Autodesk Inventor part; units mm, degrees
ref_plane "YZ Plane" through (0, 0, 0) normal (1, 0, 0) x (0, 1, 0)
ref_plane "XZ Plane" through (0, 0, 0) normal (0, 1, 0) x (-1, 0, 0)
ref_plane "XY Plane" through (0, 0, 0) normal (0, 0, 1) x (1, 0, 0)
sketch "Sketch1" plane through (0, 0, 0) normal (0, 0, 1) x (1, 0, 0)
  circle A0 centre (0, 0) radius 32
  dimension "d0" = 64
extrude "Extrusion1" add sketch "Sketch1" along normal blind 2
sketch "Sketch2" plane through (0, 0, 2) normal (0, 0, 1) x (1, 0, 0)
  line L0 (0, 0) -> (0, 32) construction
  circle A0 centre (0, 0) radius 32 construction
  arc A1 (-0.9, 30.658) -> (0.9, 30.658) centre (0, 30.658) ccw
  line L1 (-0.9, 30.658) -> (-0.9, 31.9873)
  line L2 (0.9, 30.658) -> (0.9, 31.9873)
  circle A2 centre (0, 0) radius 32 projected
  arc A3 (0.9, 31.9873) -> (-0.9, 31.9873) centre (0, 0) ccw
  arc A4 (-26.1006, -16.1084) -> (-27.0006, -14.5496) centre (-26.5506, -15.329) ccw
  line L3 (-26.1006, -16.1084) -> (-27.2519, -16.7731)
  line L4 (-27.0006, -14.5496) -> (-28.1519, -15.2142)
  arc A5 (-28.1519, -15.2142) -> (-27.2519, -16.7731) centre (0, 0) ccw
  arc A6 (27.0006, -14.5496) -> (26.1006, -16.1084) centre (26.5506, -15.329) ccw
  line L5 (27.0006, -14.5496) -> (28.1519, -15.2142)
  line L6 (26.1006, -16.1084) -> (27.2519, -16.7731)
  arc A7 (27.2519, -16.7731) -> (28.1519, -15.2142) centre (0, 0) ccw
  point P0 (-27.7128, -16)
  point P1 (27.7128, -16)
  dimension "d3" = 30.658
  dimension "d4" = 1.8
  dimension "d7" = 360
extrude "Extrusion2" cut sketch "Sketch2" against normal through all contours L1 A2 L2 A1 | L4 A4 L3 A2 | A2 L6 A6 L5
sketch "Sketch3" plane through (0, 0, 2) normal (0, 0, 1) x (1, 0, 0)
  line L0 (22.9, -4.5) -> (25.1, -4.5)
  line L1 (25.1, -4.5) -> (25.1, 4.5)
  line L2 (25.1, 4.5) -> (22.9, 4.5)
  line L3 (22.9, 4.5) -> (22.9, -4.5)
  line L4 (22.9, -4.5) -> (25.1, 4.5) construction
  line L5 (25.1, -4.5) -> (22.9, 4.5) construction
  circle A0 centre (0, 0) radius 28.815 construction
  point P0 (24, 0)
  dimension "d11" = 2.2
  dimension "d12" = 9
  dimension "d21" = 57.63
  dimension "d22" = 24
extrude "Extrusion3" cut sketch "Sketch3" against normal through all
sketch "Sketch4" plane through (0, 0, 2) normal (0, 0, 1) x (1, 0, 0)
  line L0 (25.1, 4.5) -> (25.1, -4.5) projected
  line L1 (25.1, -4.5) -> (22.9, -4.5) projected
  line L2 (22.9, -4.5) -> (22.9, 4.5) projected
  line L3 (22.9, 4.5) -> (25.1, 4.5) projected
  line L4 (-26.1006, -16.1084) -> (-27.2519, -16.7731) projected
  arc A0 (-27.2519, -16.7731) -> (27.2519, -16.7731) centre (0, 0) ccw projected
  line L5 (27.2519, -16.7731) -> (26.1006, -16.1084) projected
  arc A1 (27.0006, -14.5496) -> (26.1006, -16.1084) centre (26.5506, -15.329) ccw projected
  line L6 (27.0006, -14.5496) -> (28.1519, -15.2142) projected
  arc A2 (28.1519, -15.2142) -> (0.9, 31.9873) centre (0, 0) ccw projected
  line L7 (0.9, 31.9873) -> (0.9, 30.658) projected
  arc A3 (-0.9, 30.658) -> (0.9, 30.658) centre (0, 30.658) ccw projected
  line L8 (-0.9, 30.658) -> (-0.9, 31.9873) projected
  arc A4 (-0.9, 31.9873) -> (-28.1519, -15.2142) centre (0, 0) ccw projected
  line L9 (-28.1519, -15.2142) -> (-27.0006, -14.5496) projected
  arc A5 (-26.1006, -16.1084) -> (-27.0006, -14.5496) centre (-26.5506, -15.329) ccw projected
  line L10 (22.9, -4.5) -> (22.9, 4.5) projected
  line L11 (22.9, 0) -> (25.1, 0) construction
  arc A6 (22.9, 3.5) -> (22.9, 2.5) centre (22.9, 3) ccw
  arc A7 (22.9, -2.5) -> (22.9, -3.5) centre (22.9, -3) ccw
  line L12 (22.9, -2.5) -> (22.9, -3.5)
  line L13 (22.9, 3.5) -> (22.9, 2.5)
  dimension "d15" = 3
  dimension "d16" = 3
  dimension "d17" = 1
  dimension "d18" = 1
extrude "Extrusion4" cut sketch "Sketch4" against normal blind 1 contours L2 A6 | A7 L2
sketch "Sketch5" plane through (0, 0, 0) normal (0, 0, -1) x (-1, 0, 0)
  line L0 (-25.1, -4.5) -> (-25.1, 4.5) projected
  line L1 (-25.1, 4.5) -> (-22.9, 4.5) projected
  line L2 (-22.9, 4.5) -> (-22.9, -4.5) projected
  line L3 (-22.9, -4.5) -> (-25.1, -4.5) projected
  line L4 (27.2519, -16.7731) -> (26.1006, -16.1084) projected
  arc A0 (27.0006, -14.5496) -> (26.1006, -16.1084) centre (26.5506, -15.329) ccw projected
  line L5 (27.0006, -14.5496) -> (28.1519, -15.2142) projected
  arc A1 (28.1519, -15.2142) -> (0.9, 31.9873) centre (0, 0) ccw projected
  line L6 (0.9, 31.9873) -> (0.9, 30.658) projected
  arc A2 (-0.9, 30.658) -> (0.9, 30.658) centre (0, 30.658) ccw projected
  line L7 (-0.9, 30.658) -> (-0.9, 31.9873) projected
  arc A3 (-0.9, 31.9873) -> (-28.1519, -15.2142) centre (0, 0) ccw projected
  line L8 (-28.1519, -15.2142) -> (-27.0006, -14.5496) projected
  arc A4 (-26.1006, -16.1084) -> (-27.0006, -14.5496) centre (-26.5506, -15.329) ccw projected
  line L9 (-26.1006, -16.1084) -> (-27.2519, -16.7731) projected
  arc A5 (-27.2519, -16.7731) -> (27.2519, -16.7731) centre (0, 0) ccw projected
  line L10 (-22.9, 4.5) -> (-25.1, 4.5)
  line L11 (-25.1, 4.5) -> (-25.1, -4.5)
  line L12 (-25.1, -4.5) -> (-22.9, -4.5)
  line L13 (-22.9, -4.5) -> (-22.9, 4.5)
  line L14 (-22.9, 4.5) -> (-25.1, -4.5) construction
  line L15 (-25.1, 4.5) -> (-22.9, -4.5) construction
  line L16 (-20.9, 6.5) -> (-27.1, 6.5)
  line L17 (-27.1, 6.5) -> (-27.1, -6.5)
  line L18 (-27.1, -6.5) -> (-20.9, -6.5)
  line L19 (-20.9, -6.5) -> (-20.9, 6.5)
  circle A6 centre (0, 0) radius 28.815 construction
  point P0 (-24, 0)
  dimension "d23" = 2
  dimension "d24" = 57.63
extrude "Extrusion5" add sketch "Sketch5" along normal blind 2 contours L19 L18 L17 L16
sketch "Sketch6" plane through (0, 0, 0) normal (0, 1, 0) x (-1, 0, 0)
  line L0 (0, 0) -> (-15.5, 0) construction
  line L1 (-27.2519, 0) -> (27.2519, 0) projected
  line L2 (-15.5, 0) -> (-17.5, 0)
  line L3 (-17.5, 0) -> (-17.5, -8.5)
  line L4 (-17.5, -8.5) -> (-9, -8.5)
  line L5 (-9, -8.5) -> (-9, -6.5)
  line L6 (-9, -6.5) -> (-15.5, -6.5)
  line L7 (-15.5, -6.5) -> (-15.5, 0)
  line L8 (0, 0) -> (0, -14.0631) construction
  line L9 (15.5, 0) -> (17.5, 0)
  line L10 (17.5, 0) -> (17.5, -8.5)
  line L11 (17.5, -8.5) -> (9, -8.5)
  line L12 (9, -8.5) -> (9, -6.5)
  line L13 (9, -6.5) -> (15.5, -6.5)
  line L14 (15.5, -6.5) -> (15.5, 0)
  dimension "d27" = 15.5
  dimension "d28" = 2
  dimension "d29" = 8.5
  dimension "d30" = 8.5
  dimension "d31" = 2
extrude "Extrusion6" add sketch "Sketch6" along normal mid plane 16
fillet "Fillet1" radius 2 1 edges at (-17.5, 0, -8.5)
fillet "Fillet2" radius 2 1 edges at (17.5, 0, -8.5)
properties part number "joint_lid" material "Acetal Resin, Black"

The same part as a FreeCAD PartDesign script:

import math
import FreeCAD as App
import Part
import Sketcher
Q = App.Units.Quantity


def edges_at(feature, points):
    """Names of the edges that pass closest to the given points."""
    edges = feature.Shape.Edges
    near = lambda p: min(range(len(edges)), key=lambda i: edges[i].distToShape(Part.Vertex(*p))[0])
    return sorted({f"Edge{near(p) + 1}" for p in points})

doc = App.newDocument("Part")
body = doc.addObject("PartDesign::Body", "Body")

# Sketch on XY plane
sketch1 = body.newObject("Sketcher::SketchObject", "Sketch")
sketch1.AttachmentSupport = (doc.getObject("XY_Plane"), [""])
sketch1.MapMode = "FlatFace"
sketch1.addGeometry(Part.Circle(App.Vector(0, 0, 0), App.Vector(0, 0, 1), 32), False)
sketch1.addConstraint([
    Sketcher.Constraint("Coincident", 0, 3, -1, 1),
    Sketcher.Constraint("Diameter", 0, Q("64 mm")),
])
pad1 = body.newObject("PartDesign::Pad", "Pad")
pad1.Profile = sketch1
pad1.Length = 2

# Sketch on XY plane
sketch2 = body.newObject("Sketcher::SketchObject", "Sketch001")
sketch2.AttachmentSupport = (doc.getObject("XY_Plane"), [""])
sketch2.MapMode = "FlatFace"
sketch2.AttachmentOffset = App.Placement(App.Vector(0, 0, 2), App.Rotation())
sketch2.addGeometry([
    Part.LineSegment(App.Vector(-0.9, 32, 0), App.Vector(-0.9, 30.7, 0)),  # 0
    Part.ArcOfCircle(Part.Circle(App.Vector(0, 30.7, 0), App.Vector(0, 0, 1), 0.9), math.radians(180), math.radians(360)),  # 1
    Part.LineSegment(App.Vector(0.9, 30.7, 0), App.Vector(0.9, 32, 0)),  # 2
    Part.ArcOfCircle(Part.Circle(App.Vector(0, 0, 0), App.Vector(0, 0, 1), 32), math.radians(88.39), math.radians(91.61)),  # 3
    Part.LineSegment(App.Vector(-27, -14.5, 0), App.Vector(-28.2, -15.2, 0)),  # 4
    Part.ArcOfCircle(Part.Circle(App.Vector(0, 0, 0), App.Vector(0, 0, 1), 32), math.radians(-151.61), math.radians(-148.39)),  # 5
    Part.LineSegment(App.Vector(-27.3, -16.8, 0), App.Vector(-26.1, -16.1, 0)),  # 6
    Part.ArcOfCircle(Part.Circle(App.Vector(-26.6, -15.3, 0), App.Vector(0, 0, 1), 0.9), math.radians(-60), math.radians(120)),  # 7
    Part.ArcOfCircle(Part.Circle(App.Vector(0, 0, 0), App.Vector(0, 0, 1), 32), math.radians(-31.61), math.radians(-28.39)),  # 8
    Part.LineSegment(App.Vector(28.2, -15.2, 0), App.Vector(27, -14.5, 0)),  # 9
    Part.ArcOfCircle(Part.Circle(App.Vector(26.6, -15.3, 0), App.Vector(0, 0, 1), 0.9), math.radians(60), math.radians(240)),  # 10
    Part.LineSegment(App.Vector(26.1, -16.1, 0), App.Vector(27.3, -16.8, 0)),  # 11
], False)
sketch2.addConstraint([
    Sketcher.Constraint("Tangent", 0, 2, 1, 1),
    Sketcher.Constraint("Tangent", 1, 2, 2, 1),
    Sketcher.Constraint("Coincident", 2, 2, 3, 1),
    Sketcher.Constraint("Coincident", 3, 2, 0, 1),
    Sketcher.Constraint("Coincident", 4, 2, 5, 1),
    Sketcher.Constraint("Coincident", 5, 2, 6, 1),
    Sketcher.Constraint("Tangent", 6, 2, 7, 1),
    Sketcher.Constraint("Tangent", 7, 2, 4, 1),
    Sketcher.Constraint("Coincident", 8, 2, 9, 1),
    Sketcher.Constraint("Tangent", 9, 2, 10, 1),
    Sketcher.Constraint("Tangent", 10, 2, 11, 1),
    Sketcher.Constraint("Coincident", 11, 2, 8, 1),
    Sketcher.Constraint("Vertical", 0),
    Sketcher.Constraint("Vertical", 2),
    Sketcher.Constraint("Coincident", 3, 3, -1, 1),
    Sketcher.Constraint("Coincident", 5, 3, -1, 1),
    Sketcher.Constraint("Coincident", 8, 3, -1, 1),
    Sketcher.Constraint("Equal", 3, 5),
    Sketcher.Constraint("Equal", 1, 7),
    Sketcher.Constraint("Equal", 5, 8),
    Sketcher.Constraint("Equal", 7, 10),
    Sketcher.Constraint("Symmetric", 7, 3, 10, 3, -2),
    Sketcher.Constraint("PointOnObject", 1, 3, -2),
    Sketcher.Constraint("Parallel", 4, 6),
    Sketcher.Constraint("Parallel", 9, 11),
    Sketcher.Constraint("Horizontal", 4, 2, 8, 2),
    Sketcher.Constraint("Equal", 4, 6),
    Sketcher.Constraint("Radius", 1, Q("0.9 mm")),
    Sketcher.Constraint("Radius", 3, Q("32 mm")),
    Sketcher.Constraint("Angle", 6, Q("29.9999 deg")),
    Sketcher.Constraint("DistanceY", -1, 1, 1, 3, Q("30.658 mm")),
    Sketcher.Constraint("DistanceY", 7, 3, -1, 1, Q("15.329 mm")),
])
pocket1 = body.newObject("PartDesign::Pocket", "Pocket")
pocket1.Profile = sketch2
pocket1.Type = "ThroughAll"

# Sketch on XY plane
sketch3 = body.newObject("Sketcher::SketchObject", "Sketch002")
sketch3.AttachmentSupport = (doc.getObject("XY_Plane"), [""])
sketch3.MapMode = "FlatFace"
sketch3.AttachmentOffset = App.Placement(App.Vector(0, 0, 2), App.Rotation())
sketch3.addGeometry([
    Part.LineSegment(App.Vector(22.9, 4.5, 0), App.Vector(22.9, -4.5, 0)),
    Part.LineSegment(App.Vector(22.9, -4.5, 0), App.Vector(25.1, -4.5, 0)),
    Part.LineSegment(App.Vector(25.1, -4.5, 0), App.Vector(25.1, 4.5, 0)),
    Part.LineSegment(App.Vector(25.1, 4.5, 0), App.Vector(22.9, 4.5, 0)),
], False)
sketch3.addConstraint([
    Sketcher.Constraint("Coincident", 0, 2, 1, 1),
    Sketcher.Constraint("Coincident", 1, 2, 2, 1),
    Sketcher.Constraint("Coincident", 2, 2, 3, 1),
    Sketcher.Constraint("Coincident", 3, 2, 0, 1),
    Sketcher.Constraint("Vertical", 0),
    Sketcher.Constraint("Horizontal", 1),
    Sketcher.Constraint("Vertical", 2),
    Sketcher.Constraint("Horizontal", 3),
    Sketcher.Constraint("DistanceY", 0, 2, 0, 1, Q("9 mm")),
    Sketcher.Constraint("DistanceX", 1, 1, 1, 2, Q("2.2 mm")),
    Sketcher.Constraint("DistanceX", -1, 1, 0, 2, Q("22.9 mm")),
    Sketcher.Constraint("DistanceY", 0, 2, -1, 1, Q("4.5 mm")),
])
pocket2 = body.newObject("PartDesign::Pocket", "Pocket001")
pocket2.Profile = sketch3
pocket2.Type = "ThroughAll"

# Sketch on XY plane
sketch4 = body.newObject("Sketcher::SketchObject", "Sketch003")
sketch4.AttachmentSupport = (doc.getObject("XY_Plane"), [""])
sketch4.MapMode = "FlatFace"
sketch4.AttachmentOffset = App.Placement(App.Vector(0, 0, 2), App.Rotation())
sketch4.addGeometry([
    Part.LineSegment(App.Vector(22.9, 2.5, 0), App.Vector(22.9, 3.5, 0)),
    Part.ArcOfCircle(Part.Circle(App.Vector(22.9, 3, 0), App.Vector(0, 0, 1), 0.5), math.radians(90), math.radians(270)),
    Part.ArcOfCircle(Part.Circle(App.Vector(22.9, -3, 0), App.Vector(0, 0, 1), 0.5), math.radians(90), math.radians(270)),
    Part.LineSegment(App.Vector(22.9, -3.5, 0), App.Vector(22.9, -2.5, 0)),
], False)
sketch4.addConstraint([
    Sketcher.Constraint("Coincident", 0, 1, 1, 2),
    Sketcher.Constraint("Coincident", 1, 1, 0, 2),
    Sketcher.Constraint("Coincident", 2, 1, 3, 2),
    Sketcher.Constraint("Coincident", 3, 1, 2, 2),
    Sketcher.Constraint("Vertical", 0),
    Sketcher.Constraint("Vertical", 3),
    Sketcher.Constraint("Equal", 1, 2),
    Sketcher.Constraint("Symmetric", 1, 3, 2, 3, -1),
    Sketcher.Constraint("Vertical", 2, 3, 0, 1),
    Sketcher.Constraint("Vertical", 1, 1, 2, 1),
    Sketcher.Constraint("Radius", 1, Q("0.5 mm")),
    Sketcher.Constraint("DistanceY", -1, 1, 1, 3, Q("3 mm")),
    Sketcher.Constraint("DistanceX", -1, 1, 1, 3, Q("22.9 mm")),
])
pocket3 = body.newObject("PartDesign::Pocket", "Pocket002")
pocket3.Profile = sketch4
pocket3.Length = 1

# Sketch on XY plane
sketch5 = body.newObject("Sketcher::SketchObject", "Sketch004")
sketch5.AttachmentSupport = (doc.getObject("XY_Plane"), [""])
sketch5.MapMode = "FlatFace"
sketch5.addGeometry([
    Part.LineSegment(App.Vector(20.9, -6.5, 0), App.Vector(20.9, 6.5, 0)),  # 0
    Part.LineSegment(App.Vector(20.9, 6.5, 0), App.Vector(27.1, 6.5, 0)),  # 1
    Part.LineSegment(App.Vector(27.1, 6.5, 0), App.Vector(27.1, -6.5, 0)),  # 2
    Part.LineSegment(App.Vector(27.1, -6.5, 0), App.Vector(20.9, -6.5, 0)),  # 3
    Part.LineSegment(App.Vector(22.9, -4.5, 0), App.Vector(25.1, -4.5, 0)),  # 4
    Part.LineSegment(App.Vector(25.1, -4.5, 0), App.Vector(25.1, 4.5, 0)),  # 5
    Part.LineSegment(App.Vector(25.1, 4.5, 0), App.Vector(22.9, 4.5, 0)),  # 6
    Part.LineSegment(App.Vector(22.9, 4.5, 0), App.Vector(22.9, -4.5, 0)),  # 7
], False)
sketch5.addConstraint([
    Sketcher.Constraint("Coincident", 0, 2, 1, 1),
    Sketcher.Constraint("Coincident", 1, 2, 2, 1),
    Sketcher.Constraint("Coincident", 2, 2, 3, 1),
    Sketcher.Constraint("Coincident", 3, 2, 0, 1),
    Sketcher.Constraint("Coincident", 4, 2, 5, 1),
    Sketcher.Constraint("Coincident", 5, 2, 6, 1),
    Sketcher.Constraint("Coincident", 6, 2, 7, 1),
    Sketcher.Constraint("Coincident", 7, 2, 4, 1),
    Sketcher.Constraint("Vertical", 0),
    Sketcher.Constraint("Horizontal", 1),
    Sketcher.Constraint("Vertical", 2),
    Sketcher.Constraint("Horizontal", 3),
    Sketcher.Constraint("Horizontal", 4),
    Sketcher.Constraint("Vertical", 5),
    Sketcher.Constraint("Horizontal", 6),
    Sketcher.Constraint("Vertical", 7),
    Sketcher.Constraint("DistanceX", 4, 2, 2, 2, Q("2 mm")),
    Sketcher.Constraint("DistanceY", 2, 2, 4, 2, Q("2 mm")),
    Sketcher.Constraint("DistanceY", 5, 2, 1, 2, Q("2 mm")),
    Sketcher.Constraint("DistanceX", 0, 2, 6, 2, Q("2 mm")),
    Sketcher.Constraint("DistanceY", 0, 1, 0, 2, Q("13 mm")),
    Sketcher.Constraint("DistanceX", 1, 1, 1, 2, Q("6.2 mm")),
    Sketcher.Constraint("DistanceX", -1, 1, 0, 2, Q("20.9 mm")),
    Sketcher.Constraint("DistanceY", -1, 1, 0, 2, Q("6.5 mm")),
])
pad2 = body.newObject("PartDesign::Pad", "Pad001")
pad2.Profile = sketch5
pad2.Length = 2
pad2.Reversed = True

# Sketch on XZ plane
sketch6 = body.newObject("Sketcher::SketchObject", "Sketch005")
sketch6.AttachmentSupport = (doc.getObject("XZ_Plane"), [""])
sketch6.MapMode = "FlatFace"
sketch6.addGeometry([
    Part.LineSegment(App.Vector(-17.5, 0, 0), App.Vector(-15.5, 0, 0)),  # 0
    Part.LineSegment(App.Vector(-15.5, 0, 0), App.Vector(-15.5, -6.5, 0)),  # 1
    Part.LineSegment(App.Vector(-15.5, -6.5, 0), App.Vector(-9, -6.5, 0)),  # 2
    Part.LineSegment(App.Vector(-9, -6.5, 0), App.Vector(-9, -8.5, 0)),  # 3
    Part.LineSegment(App.Vector(-9, -8.5, 0), App.Vector(-17.5, -8.5, 0)),  # 4
    Part.LineSegment(App.Vector(-17.5, -8.5, 0), App.Vector(-17.5, 0, 0)),  # 5
    Part.LineSegment(App.Vector(15.5, 0, 0), App.Vector(17.5, 0, 0)),  # 6
    Part.LineSegment(App.Vector(17.5, 0, 0), App.Vector(17.5, -8.5, 0)),  # 7
    Part.LineSegment(App.Vector(17.5, -8.5, 0), App.Vector(9, -8.5, 0)),  # 8
    Part.LineSegment(App.Vector(9, -8.5, 0), App.Vector(9, -6.5, 0)),  # 9
    Part.LineSegment(App.Vector(9, -6.5, 0), App.Vector(15.5, -6.5, 0)),  # 10
    Part.LineSegment(App.Vector(15.5, -6.5, 0), App.Vector(15.5, 0, 0)),  # 11
], False)
sketch6.addConstraint([
    Sketcher.Constraint("Coincident", 0, 2, 1, 1),
    Sketcher.Constraint("Coincident", 1, 2, 2, 1),
    Sketcher.Constraint("Coincident", 2, 2, 3, 1),
    Sketcher.Constraint("Coincident", 3, 2, 4, 1),
    Sketcher.Constraint("Coincident", 4, 2, 5, 1),
    Sketcher.Constraint("Coincident", 5, 2, 0, 1),
    Sketcher.Constraint("Coincident", 6, 2, 7, 1),
    Sketcher.Constraint("Coincident", 7, 2, 8, 1),
    Sketcher.Constraint("Coincident", 8, 2, 9, 1),
    Sketcher.Constraint("Coincident", 9, 2, 10, 1),
    Sketcher.Constraint("Coincident", 10, 2, 11, 1),
    Sketcher.Constraint("Coincident", 11, 2, 6, 1),
    Sketcher.Constraint("Horizontal", 0),
    Sketcher.Constraint("Vertical", 1),
    Sketcher.Constraint("Horizontal", 2),
    Sketcher.Constraint("Vertical", 3),
    Sketcher.Constraint("Horizontal", 4),
    Sketcher.Constraint("Vertical", 5),
    Sketcher.Constraint("Horizontal", 6),
    Sketcher.Constraint("Vertical", 7),
    Sketcher.Constraint("Horizontal", 8),
    Sketcher.Constraint("Vertical", 9),
    Sketcher.Constraint("Horizontal", 10),
    Sketcher.Constraint("Vertical", 11),
    Sketcher.Constraint("Symmetric", 5, 2, 6, 2, -1, 1),
    Sketcher.Constraint("Symmetric", 3, 2, 8, 2, -2),
    Sketcher.Constraint("Symmetric", 1, 2, 10, 2, -2),
    Sketcher.Constraint("PointOnObject", 0, 2, -1),
    Sketcher.Constraint("Equal", 10, 1),
    Sketcher.Constraint("Equal", 6, 3),
    Sketcher.Constraint("DistanceX", 0, 1, 0, 2, Q("2 mm")),
    Sketcher.Constraint("DistanceX", 4, 2, 4, 1, Q("8.5 mm")),
    Sketcher.Constraint("DistanceX", 0, 2, -1, 1, Q("15.5 mm")),
])
pad3 = body.newObject("PartDesign::Pad", "Pad002")
pad3.Profile = sketch6
pad3.Length = 16
pad3.Midplane = True
doc.recompute()

fillet = body.newObject("PartDesign::Fillet", "Fillet")
fillet.Base = (pad3, edges_at(pad3, [(-17.5, 0, -8.5)]))
fillet.Radius = 2
doc.recompute()

fillet2 = body.newObject("PartDesign::Fillet", "Fillet001")
fillet2.Base = (fillet, edges_at(fillet, [(17.5, 0, -8.5)]))
fillet2.Radius = 2

doc.recompute()
